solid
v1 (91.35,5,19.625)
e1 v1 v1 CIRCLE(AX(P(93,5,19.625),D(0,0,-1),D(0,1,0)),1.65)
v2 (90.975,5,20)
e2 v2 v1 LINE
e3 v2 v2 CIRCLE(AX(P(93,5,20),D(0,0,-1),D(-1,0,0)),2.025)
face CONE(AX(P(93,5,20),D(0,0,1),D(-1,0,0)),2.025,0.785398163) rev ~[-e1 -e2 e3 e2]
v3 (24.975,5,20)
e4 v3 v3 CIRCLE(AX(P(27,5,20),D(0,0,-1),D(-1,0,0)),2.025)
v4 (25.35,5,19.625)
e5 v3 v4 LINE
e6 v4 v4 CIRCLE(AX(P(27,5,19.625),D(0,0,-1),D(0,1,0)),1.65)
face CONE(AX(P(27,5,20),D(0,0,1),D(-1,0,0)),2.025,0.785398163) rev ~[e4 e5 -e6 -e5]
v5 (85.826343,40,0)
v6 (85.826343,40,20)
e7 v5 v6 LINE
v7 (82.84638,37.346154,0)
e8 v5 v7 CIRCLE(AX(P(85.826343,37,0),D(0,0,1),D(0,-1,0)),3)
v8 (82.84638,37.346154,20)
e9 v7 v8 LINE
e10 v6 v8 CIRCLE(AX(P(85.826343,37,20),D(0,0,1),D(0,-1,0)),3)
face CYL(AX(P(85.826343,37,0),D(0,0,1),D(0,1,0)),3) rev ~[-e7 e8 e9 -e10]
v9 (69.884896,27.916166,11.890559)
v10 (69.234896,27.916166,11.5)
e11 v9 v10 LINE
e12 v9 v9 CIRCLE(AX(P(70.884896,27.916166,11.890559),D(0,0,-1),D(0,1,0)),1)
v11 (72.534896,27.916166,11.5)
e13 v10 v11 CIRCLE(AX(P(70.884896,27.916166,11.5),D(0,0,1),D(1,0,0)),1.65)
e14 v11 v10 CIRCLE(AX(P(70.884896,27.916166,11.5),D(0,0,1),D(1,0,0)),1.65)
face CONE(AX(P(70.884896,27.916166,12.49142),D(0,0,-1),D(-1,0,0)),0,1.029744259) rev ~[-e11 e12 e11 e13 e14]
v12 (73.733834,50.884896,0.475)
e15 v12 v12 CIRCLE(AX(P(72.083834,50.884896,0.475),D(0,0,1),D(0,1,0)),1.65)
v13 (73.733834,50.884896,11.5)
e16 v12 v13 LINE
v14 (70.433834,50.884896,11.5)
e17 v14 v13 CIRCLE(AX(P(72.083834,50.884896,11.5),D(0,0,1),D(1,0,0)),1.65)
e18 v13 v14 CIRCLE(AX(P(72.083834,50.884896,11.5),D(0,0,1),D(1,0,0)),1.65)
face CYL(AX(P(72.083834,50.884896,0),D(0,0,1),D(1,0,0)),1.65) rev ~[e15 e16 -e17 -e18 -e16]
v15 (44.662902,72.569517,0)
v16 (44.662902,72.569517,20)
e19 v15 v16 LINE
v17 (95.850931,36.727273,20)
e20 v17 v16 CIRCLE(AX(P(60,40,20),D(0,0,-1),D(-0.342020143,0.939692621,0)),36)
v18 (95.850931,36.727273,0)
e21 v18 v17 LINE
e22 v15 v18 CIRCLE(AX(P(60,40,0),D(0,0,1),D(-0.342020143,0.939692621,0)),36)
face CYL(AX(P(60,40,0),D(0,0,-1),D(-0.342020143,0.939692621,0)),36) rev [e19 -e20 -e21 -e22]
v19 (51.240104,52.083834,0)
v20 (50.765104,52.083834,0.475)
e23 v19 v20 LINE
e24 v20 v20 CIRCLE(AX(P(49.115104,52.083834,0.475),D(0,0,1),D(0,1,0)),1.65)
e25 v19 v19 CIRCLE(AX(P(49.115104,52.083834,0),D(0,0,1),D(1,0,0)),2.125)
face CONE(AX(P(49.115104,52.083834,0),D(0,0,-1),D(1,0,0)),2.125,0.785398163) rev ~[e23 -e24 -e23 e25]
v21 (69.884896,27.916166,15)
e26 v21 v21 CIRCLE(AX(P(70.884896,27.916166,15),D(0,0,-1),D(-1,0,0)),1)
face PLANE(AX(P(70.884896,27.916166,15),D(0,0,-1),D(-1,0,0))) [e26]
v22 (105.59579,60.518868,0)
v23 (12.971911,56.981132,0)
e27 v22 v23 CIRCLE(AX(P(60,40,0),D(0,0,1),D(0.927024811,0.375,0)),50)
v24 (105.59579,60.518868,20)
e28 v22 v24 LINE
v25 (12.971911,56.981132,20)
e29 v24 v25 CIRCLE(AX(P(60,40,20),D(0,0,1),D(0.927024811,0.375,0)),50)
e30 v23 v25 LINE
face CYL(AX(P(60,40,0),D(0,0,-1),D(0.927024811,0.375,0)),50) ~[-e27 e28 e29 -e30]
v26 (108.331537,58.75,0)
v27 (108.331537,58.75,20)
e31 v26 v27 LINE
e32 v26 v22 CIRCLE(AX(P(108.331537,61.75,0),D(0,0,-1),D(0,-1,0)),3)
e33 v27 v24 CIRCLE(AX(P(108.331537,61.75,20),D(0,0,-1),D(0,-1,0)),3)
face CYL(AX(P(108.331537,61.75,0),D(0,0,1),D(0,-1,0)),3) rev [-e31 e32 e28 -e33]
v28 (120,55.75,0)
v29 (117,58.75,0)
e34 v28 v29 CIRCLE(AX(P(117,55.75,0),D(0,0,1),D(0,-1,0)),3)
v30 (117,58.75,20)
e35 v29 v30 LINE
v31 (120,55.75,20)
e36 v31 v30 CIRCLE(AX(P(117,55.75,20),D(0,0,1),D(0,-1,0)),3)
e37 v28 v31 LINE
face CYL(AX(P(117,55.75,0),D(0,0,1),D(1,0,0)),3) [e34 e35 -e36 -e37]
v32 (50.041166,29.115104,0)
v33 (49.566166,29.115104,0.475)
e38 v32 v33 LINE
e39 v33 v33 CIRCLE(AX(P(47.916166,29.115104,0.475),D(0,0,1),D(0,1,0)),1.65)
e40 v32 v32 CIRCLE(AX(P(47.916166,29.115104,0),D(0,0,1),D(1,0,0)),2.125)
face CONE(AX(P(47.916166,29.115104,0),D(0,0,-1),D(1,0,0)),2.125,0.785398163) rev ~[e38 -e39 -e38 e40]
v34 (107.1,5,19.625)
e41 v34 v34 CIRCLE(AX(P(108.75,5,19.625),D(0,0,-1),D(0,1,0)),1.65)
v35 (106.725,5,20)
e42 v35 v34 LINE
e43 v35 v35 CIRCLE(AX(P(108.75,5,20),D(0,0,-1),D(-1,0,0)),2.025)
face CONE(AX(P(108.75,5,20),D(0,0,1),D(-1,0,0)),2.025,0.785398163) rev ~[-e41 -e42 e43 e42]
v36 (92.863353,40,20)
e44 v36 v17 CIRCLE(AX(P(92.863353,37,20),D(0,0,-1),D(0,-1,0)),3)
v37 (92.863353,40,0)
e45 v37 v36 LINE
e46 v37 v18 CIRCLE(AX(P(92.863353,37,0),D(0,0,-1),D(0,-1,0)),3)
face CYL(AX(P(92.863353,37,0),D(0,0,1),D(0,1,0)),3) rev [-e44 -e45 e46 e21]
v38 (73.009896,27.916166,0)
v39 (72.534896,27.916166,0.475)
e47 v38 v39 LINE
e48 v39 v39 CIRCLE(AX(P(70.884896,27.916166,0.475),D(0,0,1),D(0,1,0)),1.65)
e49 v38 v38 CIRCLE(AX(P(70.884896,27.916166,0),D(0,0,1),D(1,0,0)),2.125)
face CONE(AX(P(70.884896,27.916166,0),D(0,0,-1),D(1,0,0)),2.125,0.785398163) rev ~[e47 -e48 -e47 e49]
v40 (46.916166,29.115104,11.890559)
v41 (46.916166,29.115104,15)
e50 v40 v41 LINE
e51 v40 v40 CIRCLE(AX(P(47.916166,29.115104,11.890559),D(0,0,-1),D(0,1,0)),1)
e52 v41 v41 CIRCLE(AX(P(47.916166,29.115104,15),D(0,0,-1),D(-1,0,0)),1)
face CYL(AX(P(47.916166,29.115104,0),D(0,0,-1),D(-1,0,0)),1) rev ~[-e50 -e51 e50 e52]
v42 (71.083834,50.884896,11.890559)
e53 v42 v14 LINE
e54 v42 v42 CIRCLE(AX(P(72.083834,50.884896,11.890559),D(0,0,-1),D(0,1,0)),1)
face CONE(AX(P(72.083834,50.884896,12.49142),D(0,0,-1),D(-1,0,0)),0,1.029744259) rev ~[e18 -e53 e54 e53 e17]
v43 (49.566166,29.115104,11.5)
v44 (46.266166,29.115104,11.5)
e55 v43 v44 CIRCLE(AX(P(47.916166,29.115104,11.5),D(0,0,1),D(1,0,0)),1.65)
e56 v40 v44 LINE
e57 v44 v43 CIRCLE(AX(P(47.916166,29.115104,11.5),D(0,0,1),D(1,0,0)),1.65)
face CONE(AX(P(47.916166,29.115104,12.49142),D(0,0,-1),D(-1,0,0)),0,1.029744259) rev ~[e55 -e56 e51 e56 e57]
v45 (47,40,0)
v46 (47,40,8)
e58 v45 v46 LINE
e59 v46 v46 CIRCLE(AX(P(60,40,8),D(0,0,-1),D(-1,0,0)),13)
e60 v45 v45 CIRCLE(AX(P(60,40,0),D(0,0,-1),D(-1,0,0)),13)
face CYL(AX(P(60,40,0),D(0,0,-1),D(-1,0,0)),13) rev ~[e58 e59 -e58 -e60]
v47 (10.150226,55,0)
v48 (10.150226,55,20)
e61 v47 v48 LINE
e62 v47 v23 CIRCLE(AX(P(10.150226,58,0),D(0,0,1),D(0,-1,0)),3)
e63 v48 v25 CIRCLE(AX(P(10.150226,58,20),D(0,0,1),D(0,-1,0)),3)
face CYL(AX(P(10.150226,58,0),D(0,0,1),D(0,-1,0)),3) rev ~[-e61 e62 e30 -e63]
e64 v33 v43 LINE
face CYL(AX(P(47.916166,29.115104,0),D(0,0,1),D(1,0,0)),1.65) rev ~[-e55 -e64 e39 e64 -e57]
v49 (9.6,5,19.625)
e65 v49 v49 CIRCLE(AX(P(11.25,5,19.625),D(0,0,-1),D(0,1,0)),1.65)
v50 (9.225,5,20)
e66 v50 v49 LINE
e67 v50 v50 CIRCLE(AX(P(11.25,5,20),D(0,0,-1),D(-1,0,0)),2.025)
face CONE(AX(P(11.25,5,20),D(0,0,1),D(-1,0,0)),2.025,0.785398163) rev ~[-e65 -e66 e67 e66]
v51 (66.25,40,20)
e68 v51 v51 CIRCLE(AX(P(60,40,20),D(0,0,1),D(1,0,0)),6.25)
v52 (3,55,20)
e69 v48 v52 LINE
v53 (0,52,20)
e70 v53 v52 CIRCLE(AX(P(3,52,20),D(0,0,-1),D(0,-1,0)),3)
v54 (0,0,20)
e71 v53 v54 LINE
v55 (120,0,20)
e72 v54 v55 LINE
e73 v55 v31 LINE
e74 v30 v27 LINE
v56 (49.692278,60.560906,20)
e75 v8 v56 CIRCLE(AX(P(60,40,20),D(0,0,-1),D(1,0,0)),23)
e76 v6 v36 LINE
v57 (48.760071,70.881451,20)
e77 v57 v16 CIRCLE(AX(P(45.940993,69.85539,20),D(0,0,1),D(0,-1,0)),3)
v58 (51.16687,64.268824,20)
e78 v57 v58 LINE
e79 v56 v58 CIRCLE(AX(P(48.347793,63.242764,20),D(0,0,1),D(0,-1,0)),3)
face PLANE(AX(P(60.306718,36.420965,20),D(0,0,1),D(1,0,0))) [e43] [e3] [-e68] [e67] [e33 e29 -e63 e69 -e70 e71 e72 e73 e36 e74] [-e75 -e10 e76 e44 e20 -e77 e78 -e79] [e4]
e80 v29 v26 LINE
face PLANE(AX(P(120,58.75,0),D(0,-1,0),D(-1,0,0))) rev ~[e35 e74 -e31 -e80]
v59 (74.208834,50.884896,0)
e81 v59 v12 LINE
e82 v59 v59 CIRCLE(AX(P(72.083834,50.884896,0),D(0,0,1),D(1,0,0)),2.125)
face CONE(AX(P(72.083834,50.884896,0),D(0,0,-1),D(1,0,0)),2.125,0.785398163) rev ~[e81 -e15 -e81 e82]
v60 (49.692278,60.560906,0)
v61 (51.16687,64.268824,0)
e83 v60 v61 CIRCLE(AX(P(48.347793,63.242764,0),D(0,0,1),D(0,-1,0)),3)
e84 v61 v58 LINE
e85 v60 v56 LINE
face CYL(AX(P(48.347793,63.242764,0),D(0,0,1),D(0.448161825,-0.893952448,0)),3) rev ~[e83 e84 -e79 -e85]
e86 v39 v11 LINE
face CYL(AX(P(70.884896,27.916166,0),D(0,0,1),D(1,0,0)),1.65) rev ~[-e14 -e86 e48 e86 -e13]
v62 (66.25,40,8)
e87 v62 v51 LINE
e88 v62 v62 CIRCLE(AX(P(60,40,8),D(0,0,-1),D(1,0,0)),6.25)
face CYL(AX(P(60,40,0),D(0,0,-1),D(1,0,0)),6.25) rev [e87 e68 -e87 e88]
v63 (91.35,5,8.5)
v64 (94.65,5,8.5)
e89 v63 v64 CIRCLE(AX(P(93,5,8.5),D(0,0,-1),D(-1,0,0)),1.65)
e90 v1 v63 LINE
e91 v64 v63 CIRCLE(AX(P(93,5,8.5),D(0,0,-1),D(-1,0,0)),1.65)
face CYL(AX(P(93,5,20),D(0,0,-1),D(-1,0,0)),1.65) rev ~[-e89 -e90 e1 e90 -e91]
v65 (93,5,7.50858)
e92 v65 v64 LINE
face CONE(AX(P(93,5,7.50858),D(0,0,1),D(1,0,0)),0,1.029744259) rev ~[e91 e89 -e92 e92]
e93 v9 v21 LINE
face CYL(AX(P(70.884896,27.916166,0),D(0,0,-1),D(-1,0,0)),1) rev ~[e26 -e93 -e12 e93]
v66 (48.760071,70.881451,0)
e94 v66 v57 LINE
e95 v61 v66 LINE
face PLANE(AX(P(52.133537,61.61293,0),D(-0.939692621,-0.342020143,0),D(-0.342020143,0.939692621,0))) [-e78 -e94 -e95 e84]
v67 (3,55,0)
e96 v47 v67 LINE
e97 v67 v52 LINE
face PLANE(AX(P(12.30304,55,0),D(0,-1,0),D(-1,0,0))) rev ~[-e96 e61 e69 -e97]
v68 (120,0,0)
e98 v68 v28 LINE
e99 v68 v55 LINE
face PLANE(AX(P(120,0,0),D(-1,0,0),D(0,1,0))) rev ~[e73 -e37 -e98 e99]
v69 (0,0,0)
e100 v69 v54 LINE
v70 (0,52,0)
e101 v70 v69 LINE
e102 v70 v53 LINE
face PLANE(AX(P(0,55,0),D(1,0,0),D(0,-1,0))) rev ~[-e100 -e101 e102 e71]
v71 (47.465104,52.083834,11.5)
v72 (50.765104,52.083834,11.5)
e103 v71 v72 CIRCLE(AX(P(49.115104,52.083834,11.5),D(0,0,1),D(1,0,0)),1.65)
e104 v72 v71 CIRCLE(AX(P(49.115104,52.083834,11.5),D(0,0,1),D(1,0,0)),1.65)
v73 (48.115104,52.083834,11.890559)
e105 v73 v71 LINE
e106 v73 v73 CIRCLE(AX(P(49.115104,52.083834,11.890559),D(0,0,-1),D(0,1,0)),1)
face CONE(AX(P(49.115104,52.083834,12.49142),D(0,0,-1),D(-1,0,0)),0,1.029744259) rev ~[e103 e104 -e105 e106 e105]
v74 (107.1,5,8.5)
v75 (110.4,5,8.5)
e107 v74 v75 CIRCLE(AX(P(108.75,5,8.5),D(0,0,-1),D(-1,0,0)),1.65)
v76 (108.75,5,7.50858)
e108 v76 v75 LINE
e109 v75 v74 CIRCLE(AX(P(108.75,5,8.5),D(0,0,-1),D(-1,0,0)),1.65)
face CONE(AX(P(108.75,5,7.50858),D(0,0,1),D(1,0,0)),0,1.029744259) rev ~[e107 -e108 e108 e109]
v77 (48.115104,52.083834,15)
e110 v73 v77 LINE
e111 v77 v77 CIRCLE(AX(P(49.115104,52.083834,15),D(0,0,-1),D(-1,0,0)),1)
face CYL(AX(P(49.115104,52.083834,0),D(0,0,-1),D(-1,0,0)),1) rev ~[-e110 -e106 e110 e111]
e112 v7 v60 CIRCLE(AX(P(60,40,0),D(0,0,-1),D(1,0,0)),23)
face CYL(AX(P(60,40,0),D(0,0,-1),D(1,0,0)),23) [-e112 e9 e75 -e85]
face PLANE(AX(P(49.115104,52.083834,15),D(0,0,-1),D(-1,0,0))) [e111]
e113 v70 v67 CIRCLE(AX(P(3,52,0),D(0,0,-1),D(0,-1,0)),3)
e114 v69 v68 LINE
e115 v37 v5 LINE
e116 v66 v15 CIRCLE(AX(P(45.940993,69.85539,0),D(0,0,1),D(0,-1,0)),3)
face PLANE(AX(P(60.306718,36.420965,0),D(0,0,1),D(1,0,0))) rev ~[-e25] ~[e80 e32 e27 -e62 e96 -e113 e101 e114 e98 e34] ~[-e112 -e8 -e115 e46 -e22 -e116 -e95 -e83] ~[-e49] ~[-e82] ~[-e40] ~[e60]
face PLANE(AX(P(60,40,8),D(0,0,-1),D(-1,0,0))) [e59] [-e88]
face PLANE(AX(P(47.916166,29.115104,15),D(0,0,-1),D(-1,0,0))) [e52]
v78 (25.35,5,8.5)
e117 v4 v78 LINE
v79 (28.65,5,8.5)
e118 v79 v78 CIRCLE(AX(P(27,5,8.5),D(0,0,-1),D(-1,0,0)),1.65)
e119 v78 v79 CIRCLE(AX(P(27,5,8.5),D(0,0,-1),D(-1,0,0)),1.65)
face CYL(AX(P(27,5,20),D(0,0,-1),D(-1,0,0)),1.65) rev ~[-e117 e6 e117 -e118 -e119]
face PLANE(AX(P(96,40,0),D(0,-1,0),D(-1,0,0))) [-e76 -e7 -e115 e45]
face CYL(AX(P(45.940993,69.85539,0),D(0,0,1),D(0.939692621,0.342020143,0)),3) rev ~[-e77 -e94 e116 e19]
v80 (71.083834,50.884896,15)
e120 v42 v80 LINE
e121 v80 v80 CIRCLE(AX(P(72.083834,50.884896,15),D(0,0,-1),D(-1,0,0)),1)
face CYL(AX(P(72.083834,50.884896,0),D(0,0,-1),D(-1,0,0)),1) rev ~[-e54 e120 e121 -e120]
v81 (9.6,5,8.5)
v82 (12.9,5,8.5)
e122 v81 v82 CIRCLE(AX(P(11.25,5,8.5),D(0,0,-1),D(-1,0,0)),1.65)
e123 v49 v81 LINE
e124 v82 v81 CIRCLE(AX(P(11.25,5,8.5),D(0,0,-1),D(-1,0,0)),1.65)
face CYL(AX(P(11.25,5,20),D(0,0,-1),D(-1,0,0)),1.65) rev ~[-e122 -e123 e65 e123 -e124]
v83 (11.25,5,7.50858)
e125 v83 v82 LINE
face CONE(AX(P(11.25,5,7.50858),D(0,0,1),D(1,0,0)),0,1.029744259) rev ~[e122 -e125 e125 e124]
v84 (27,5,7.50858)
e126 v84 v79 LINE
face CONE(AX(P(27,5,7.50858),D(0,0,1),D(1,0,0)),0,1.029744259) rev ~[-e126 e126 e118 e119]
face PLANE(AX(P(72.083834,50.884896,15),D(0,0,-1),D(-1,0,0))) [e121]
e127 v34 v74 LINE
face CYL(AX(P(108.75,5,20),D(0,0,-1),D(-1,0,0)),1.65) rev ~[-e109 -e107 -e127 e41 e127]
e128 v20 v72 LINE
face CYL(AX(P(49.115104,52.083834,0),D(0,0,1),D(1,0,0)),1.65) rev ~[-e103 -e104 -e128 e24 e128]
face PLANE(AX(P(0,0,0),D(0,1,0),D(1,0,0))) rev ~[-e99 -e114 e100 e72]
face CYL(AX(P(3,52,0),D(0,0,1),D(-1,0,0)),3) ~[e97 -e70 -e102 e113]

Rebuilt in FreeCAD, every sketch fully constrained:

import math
import FreeCAD as App
import Part
import Sketcher
Q = App.Units.Quantity


def edges_at(feature, points):
    """Names of the edges that pass closest to the given points."""
    edges = feature.Shape.Edges
    near = lambda p: min(range(len(edges)), key=lambda i: edges[i].distToShape(Part.Vertex(*p))[0])
    return sorted({f"Edge{near(p) + 1}" for p in points})

doc = App.newDocument("Part")
body = doc.addObject("PartDesign::Body", "Body")

# Sketch on XY plane
sketch1 = doc.addObject("Sketcher::SketchObject", "Sketch")
body.addObject(sketch1)
sketch1.AttachmentSupport = (doc.XY_Plane, [""])
sketch1.MapMode = "FlatFace"
sketch1.addGeometry([
    Part.LineSegment(App.Vector(0, 0, 0), App.Vector(120, 0, 0)),  # 0
    Part.LineSegment(App.Vector(120, 0, 0), App.Vector(120, 59, 0)),  # 1
    Part.LineSegment(App.Vector(120, 59, 0), App.Vector(106, 59, 0)),  # 2
    Part.ArcOfCircle(Part.Circle(App.Vector(60, 40, 0), App.Vector(0, 0, 1), 50), math.radians(22), math.radians(163)),  # 3
    Part.LineSegment(App.Vector(12, 55, 0), App.Vector(0, 55, 0)),  # 4
    Part.LineSegment(App.Vector(0, 55, 0), App.Vector(0, 0, 0)),  # 5
    Part.Circle(App.Vector(60, 40, 0), App.Vector(0, 0, 1), 6),  # 6
], False)
sketch1.addConstraint([
    Sketcher.Constraint("Coincident", 0, 2, 1, 1),
    Sketcher.Constraint("Coincident", 1, 2, 2, 1),
    Sketcher.Constraint("Coincident", 2, 2, 3, 1),
    Sketcher.Constraint("Coincident", 3, 2, 4, 1),
    Sketcher.Constraint("Coincident", 4, 2, 5, 1),
    Sketcher.Constraint("Coincident", 5, 2, 0, 1),
    Sketcher.Constraint("Horizontal", 0),
    Sketcher.Constraint("Vertical", 1),
    Sketcher.Constraint("Horizontal", 2),
    Sketcher.Constraint("Horizontal", 4),
    Sketcher.Constraint("Vertical", 5),
    Sketcher.Constraint("Coincident", 5, 2, -1, 1),
    Sketcher.Constraint("Coincident", 6, 3, 3, 3),
    Sketcher.Constraint("Radius", 3, 50.0),
    Sketcher.Constraint("Diameter", 6, 12.5),
    Sketcher.Constraint("DistanceX", 0, 1, 0, 2, 120.0),
    Sketcher.Constraint("DistanceY", 5, 2, 5, 1, 55.0),
    Sketcher.Constraint("DistanceX", -1, 1, 3, 3, 60.0),
    Sketcher.Constraint("DistanceY", -1, 1, 3, 3, 40.0),
    Sketcher.Constraint("DistanceY", 1, 1, 1, 2, 58.75),
])
pad1 = doc.addObject("PartDesign::Pad", "Pad")
body.addObject(pad1)
pad1.Profile = sketch1
pad1.Length = 20

# Sketch on XY plane
sketch2 = doc.addObject("Sketcher::SketchObject", "Sketch001")
body.addObject(sketch2)
sketch2.AttachmentSupport = (doc.XY_Plane, [""])
sketch2.MapMode = "FlatFace"
sketch2.addGeometry(Part.Circle(App.Vector(60, 40, 0), App.Vector(0, 0, 1), 13), False)
sketch2.addConstraint([
    Sketcher.Constraint("Diameter", 0, 26.0),
    Sketcher.Constraint("DistanceX", -1, 1, 0, 3, 60.0),
    Sketcher.Constraint("DistanceY", -1, 1, 0, 3, 40.0),
])
pocket1 = doc.addObject("PartDesign::Pocket", "Pocket")
body.addObject(pocket1)
pocket1.Profile = sketch2
pocket1.Length = 8
pocket1.Reversed = True

# Sketch on XY plane
sketch3 = doc.addObject("Sketcher::SketchObject", "Sketch002")
body.addObject(sketch3)
sketch3.AttachmentSupport = (doc.XY_Plane, [""])
sketch3.MapMode = "FlatFace"
sketch3.addGeometry([
    Part.LineSegment(App.Vector(83, 40, 0), App.Vector(96, 40, 0)),
    Part.ArcOfCircle(Part.Circle(App.Vector(60, 40, 0), App.Vector(0, 0, 1), 36), math.radians(110), math.radians(360)),
    Part.LineSegment(App.Vector(48, 74, 0), App.Vector(52, 62, 0)),
    Part.ArcOfCircle(Part.Circle(App.Vector(60, 40, 0), App.Vector(0, 0, 1), 23), math.radians(110), math.radians(360)),
], False)
sketch3.addConstraint([
    Sketcher.Constraint("Coincident", 0, 2, 1, 2),
    Sketcher.Constraint("Coincident", 1, 1, 2, 1),
    Sketcher.Constraint("Coincident", 2, 2, 3, 1),
    Sketcher.Constraint("Coincident", 3, 2, 0, 1),
    Sketcher.Constraint("Horizontal", 0),
    Sketcher.Constraint("Coincident", 3, 3, 1, 3),
    Sketcher.Constraint("Horizontal", 3, 3, 0, 2),
    Sketcher.Constraint("Radius", 1, 36.0),
    Sketcher.Constraint("Radius", 3, 23.0),
    Sketcher.Constraint("Angle", 2, Q("-70 deg")),
    Sketcher.Constraint("DistanceX", -1, 1, 1, 3, 60.0),
    Sketcher.Constraint("DistanceY", -1, 1, 1, 3, 40.0),
    Sketcher.Constraint("DistanceY", -1, 1, 2, 2, 61.61293),
])
pocket2 = doc.addObject("PartDesign::Pocket", "Pocket001")
body.addObject(pocket2)
pocket2.Profile = sketch3
pocket2.Length = 34.3
pocket2.Reversed = True
doc.recompute()

fillet = doc.addObject("PartDesign::Fillet", "Fillet")
body.addObject(fillet)
fillet.Base = (pocket2, edges_at(pocket2, [
    (47.687, 73.829, 10),
    (96, 40, 10),
    (83, 40, 10),
    (52.134, 61.613, 10),
]))
fillet.Radius = 3
doc.recompute()

fillet2 = doc.addObject("PartDesign::Fillet", "Fillet001")
body.addObject(fillet2)
fillet2.Base = (fillet, edges_at(fillet, [
    (0, 55, 10),
    (12.303, 55, 10),
    (106.351, 58.75, 10),
    (120, 58.75, 10),
]))
fillet2.Radius = 3

# Sketch on XY plane
sketch4 = doc.addObject("Sketcher::SketchObject", "Sketch003")
body.addObject(sketch4)
sketch4.AttachmentSupport = (doc.XY_Plane, [""])
sketch4.MapMode = "FlatFace"
sketch4.addGeometry([
    Part.Circle(App.Vector(72.1, 50.9, 0), App.Vector(0, 0, 1), 1),
    Part.Circle(App.Vector(49.1, 52.1, 0), App.Vector(0, 0, 1), 1),
    Part.Circle(App.Vector(70.9, 27.9, 0), App.Vector(0, 0, 1), 1),
    Part.Circle(App.Vector(47.9, 29.1, 0), App.Vector(0, 0, 1), 1),
], False)
sketch4.addConstraint([
    Sketcher.Constraint("Equal", 0, 1),
    Sketcher.Constraint("Equal", 1, 2),
    Sketcher.Constraint("Equal", 2, 3),
    Sketcher.Constraint("Diameter", 0, 2.0),
    Sketcher.Constraint("DistanceX", 1, 3, 0, 3, 22.96873),
    Sketcher.Constraint("DistanceY", 2, 3, 0, 3, 22.96873),
    Sketcher.Constraint("DistanceY", 3, 3, 1, 3, 22.96873),
    Sketcher.Constraint("DistanceX", 3, 3, 2, 3, 22.96873),
    Sketcher.Constraint("DistanceX", -1, 1, 0, 3, 72.083834),
    Sketcher.Constraint("DistanceY", -1, 1, 0, 3, 50.884896),
    Sketcher.Constraint("DistanceY", -1, 1, 1, 3, 52.083834),
    Sketcher.Constraint("DistanceX", -1, 1, 2, 3, 70.884896),
])
pocket3 = doc.addObject("PartDesign::Pocket", "Pocket002")
body.addObject(pocket3)
pocket3.Profile = sketch4
pocket3.Length = 15
pocket3.Reversed = True

# Sketch on XY plane
sketch5 = doc.addObject("Sketcher::SketchObject", "Sketch004")
body.addObject(sketch5)
sketch5.AttachmentSupport = (doc.XY_Plane, [""])
sketch5.MapMode = "FlatFace"
sketch5.addGeometry([
    Part.Circle(App.Vector(72.1, 50.9, 0), App.Vector(0, 0, 1), 1.6),
    Part.Circle(App.Vector(49.1, 52.1, 0), App.Vector(0, 0, 1), 1.6),
    Part.Circle(App.Vector(47.9, 29.1, 0), App.Vector(0, 0, 1), 1.6),
    Part.Circle(App.Vector(70.9, 27.9, 0), App.Vector(0, 0, 1), 1.6),
], False)
sketch5.addConstraint([
    Sketcher.Constraint("Equal", 0, 1),
    Sketcher.Constraint("Equal", 1, 2),
    Sketcher.Constraint("Equal", 2, 3),
    Sketcher.Constraint("Diameter", 0, 3.3),
    Sketcher.Constraint("DistanceX", 1, 3, 0, 3, 22.96873),
    Sketcher.Constraint("DistanceY", 2, 3, 1, 3, 22.96873),
    Sketcher.Constraint("DistanceY", 3, 3, 0, 3, 22.96873),
    Sketcher.Constraint("DistanceX", 2, 3, 3, 3, 22.96873),
    Sketcher.Constraint("DistanceX", -1, 1, 0, 3, 72.083834),
    Sketcher.Constraint("DistanceY", -1, 1, 0, 3, 50.884896),
    Sketcher.Constraint("DistanceY", -1, 1, 1, 3, 52.083834),
    Sketcher.Constraint("DistanceX", -1, 1, 2, 3, 47.916166),
])
doc.recompute()
hole = doc.addObject("PartDesign::Hole", "Hole")
body.addObject(hole)
hole.Profile = sketch5
hole.ThreadType = "None"
hole.Diameter = 3.3
hole.DepthType = "Dimension"
hole.Depth = 11.5
hole.DrillPoint = "Angled"
hole.DrillPointAngle = 118
hole.HoleCutType = "Countersink"
hole.HoleCutDiameter = 4.25
hole.HoleCutCountersinkAngle = 90
hole.Reversed = True

# Sketch on XY plane
sketch6 = doc.addObject("Sketcher::SketchObject", "Sketch005")
body.addObject(sketch6)
sketch6.AttachmentSupport = (doc.XY_Plane, [""])
sketch6.MapMode = "FlatFace"
sketch6.AttachmentOffset = App.Placement(App.Vector(0, 0, 20), App.Rotation())
sketch6.addGeometry([
    Part.Circle(App.Vector(11.2, 5, 0), App.Vector(0, 0, 1), 1.6),
    Part.Circle(App.Vector(27, 5, 0), App.Vector(0, 0, 1), 1.6),
    Part.Circle(App.Vector(93, 5, 0), App.Vector(0, 0, 1), 1.6),
    Part.Circle(App.Vector(108.8, 5, 0), App.Vector(0, 0, 1), 1.6),
], False)
sketch6.addConstraint([
    Sketcher.Constraint("Equal", 0, 1),
    Sketcher.Constraint("Equal", 1, 2),
    Sketcher.Constraint("Equal", 2, 3),
    Sketcher.Constraint("Horizontal", 0, 3, 1, 3),
    Sketcher.Constraint("Horizontal", 1, 3, 2, 3),
    Sketcher.Constraint("Horizontal", 2, 3, 3, 3),
    Sketcher.Constraint("Diameter", 0, 3.3),
    Sketcher.Constraint("DistanceY", -1, 1, 0, 3, 5.0),
    Sketcher.Constraint("DistanceX", -1, 1, 1, 3, 27.0),
    Sketcher.Constraint("DistanceX", -1, 1, 2, 3, 93.0),
    Sketcher.Constraint("DistanceX", 0, 3, 3, 3, 97.5),
    Sketcher.Constraint("DistanceX", -1, 1, 0, 3, 11.25),
])
doc.recompute()
hole2 = doc.addObject("PartDesign::Hole", "Hole001")
body.addObject(hole2)
hole2.Profile = sketch6
hole2.ThreadType = "None"
hole2.Diameter = 3.3
hole2.DepthType = "Dimension"
hole2.Depth = 11.5
hole2.DrillPoint = "Angled"
hole2.DrillPointAngle = 118
hole2.HoleCutType = "Countersink"
hole2.HoleCutDiameter = 4.05
hole2.HoleCutCountersinkAngle = 90

doc.recompute()
